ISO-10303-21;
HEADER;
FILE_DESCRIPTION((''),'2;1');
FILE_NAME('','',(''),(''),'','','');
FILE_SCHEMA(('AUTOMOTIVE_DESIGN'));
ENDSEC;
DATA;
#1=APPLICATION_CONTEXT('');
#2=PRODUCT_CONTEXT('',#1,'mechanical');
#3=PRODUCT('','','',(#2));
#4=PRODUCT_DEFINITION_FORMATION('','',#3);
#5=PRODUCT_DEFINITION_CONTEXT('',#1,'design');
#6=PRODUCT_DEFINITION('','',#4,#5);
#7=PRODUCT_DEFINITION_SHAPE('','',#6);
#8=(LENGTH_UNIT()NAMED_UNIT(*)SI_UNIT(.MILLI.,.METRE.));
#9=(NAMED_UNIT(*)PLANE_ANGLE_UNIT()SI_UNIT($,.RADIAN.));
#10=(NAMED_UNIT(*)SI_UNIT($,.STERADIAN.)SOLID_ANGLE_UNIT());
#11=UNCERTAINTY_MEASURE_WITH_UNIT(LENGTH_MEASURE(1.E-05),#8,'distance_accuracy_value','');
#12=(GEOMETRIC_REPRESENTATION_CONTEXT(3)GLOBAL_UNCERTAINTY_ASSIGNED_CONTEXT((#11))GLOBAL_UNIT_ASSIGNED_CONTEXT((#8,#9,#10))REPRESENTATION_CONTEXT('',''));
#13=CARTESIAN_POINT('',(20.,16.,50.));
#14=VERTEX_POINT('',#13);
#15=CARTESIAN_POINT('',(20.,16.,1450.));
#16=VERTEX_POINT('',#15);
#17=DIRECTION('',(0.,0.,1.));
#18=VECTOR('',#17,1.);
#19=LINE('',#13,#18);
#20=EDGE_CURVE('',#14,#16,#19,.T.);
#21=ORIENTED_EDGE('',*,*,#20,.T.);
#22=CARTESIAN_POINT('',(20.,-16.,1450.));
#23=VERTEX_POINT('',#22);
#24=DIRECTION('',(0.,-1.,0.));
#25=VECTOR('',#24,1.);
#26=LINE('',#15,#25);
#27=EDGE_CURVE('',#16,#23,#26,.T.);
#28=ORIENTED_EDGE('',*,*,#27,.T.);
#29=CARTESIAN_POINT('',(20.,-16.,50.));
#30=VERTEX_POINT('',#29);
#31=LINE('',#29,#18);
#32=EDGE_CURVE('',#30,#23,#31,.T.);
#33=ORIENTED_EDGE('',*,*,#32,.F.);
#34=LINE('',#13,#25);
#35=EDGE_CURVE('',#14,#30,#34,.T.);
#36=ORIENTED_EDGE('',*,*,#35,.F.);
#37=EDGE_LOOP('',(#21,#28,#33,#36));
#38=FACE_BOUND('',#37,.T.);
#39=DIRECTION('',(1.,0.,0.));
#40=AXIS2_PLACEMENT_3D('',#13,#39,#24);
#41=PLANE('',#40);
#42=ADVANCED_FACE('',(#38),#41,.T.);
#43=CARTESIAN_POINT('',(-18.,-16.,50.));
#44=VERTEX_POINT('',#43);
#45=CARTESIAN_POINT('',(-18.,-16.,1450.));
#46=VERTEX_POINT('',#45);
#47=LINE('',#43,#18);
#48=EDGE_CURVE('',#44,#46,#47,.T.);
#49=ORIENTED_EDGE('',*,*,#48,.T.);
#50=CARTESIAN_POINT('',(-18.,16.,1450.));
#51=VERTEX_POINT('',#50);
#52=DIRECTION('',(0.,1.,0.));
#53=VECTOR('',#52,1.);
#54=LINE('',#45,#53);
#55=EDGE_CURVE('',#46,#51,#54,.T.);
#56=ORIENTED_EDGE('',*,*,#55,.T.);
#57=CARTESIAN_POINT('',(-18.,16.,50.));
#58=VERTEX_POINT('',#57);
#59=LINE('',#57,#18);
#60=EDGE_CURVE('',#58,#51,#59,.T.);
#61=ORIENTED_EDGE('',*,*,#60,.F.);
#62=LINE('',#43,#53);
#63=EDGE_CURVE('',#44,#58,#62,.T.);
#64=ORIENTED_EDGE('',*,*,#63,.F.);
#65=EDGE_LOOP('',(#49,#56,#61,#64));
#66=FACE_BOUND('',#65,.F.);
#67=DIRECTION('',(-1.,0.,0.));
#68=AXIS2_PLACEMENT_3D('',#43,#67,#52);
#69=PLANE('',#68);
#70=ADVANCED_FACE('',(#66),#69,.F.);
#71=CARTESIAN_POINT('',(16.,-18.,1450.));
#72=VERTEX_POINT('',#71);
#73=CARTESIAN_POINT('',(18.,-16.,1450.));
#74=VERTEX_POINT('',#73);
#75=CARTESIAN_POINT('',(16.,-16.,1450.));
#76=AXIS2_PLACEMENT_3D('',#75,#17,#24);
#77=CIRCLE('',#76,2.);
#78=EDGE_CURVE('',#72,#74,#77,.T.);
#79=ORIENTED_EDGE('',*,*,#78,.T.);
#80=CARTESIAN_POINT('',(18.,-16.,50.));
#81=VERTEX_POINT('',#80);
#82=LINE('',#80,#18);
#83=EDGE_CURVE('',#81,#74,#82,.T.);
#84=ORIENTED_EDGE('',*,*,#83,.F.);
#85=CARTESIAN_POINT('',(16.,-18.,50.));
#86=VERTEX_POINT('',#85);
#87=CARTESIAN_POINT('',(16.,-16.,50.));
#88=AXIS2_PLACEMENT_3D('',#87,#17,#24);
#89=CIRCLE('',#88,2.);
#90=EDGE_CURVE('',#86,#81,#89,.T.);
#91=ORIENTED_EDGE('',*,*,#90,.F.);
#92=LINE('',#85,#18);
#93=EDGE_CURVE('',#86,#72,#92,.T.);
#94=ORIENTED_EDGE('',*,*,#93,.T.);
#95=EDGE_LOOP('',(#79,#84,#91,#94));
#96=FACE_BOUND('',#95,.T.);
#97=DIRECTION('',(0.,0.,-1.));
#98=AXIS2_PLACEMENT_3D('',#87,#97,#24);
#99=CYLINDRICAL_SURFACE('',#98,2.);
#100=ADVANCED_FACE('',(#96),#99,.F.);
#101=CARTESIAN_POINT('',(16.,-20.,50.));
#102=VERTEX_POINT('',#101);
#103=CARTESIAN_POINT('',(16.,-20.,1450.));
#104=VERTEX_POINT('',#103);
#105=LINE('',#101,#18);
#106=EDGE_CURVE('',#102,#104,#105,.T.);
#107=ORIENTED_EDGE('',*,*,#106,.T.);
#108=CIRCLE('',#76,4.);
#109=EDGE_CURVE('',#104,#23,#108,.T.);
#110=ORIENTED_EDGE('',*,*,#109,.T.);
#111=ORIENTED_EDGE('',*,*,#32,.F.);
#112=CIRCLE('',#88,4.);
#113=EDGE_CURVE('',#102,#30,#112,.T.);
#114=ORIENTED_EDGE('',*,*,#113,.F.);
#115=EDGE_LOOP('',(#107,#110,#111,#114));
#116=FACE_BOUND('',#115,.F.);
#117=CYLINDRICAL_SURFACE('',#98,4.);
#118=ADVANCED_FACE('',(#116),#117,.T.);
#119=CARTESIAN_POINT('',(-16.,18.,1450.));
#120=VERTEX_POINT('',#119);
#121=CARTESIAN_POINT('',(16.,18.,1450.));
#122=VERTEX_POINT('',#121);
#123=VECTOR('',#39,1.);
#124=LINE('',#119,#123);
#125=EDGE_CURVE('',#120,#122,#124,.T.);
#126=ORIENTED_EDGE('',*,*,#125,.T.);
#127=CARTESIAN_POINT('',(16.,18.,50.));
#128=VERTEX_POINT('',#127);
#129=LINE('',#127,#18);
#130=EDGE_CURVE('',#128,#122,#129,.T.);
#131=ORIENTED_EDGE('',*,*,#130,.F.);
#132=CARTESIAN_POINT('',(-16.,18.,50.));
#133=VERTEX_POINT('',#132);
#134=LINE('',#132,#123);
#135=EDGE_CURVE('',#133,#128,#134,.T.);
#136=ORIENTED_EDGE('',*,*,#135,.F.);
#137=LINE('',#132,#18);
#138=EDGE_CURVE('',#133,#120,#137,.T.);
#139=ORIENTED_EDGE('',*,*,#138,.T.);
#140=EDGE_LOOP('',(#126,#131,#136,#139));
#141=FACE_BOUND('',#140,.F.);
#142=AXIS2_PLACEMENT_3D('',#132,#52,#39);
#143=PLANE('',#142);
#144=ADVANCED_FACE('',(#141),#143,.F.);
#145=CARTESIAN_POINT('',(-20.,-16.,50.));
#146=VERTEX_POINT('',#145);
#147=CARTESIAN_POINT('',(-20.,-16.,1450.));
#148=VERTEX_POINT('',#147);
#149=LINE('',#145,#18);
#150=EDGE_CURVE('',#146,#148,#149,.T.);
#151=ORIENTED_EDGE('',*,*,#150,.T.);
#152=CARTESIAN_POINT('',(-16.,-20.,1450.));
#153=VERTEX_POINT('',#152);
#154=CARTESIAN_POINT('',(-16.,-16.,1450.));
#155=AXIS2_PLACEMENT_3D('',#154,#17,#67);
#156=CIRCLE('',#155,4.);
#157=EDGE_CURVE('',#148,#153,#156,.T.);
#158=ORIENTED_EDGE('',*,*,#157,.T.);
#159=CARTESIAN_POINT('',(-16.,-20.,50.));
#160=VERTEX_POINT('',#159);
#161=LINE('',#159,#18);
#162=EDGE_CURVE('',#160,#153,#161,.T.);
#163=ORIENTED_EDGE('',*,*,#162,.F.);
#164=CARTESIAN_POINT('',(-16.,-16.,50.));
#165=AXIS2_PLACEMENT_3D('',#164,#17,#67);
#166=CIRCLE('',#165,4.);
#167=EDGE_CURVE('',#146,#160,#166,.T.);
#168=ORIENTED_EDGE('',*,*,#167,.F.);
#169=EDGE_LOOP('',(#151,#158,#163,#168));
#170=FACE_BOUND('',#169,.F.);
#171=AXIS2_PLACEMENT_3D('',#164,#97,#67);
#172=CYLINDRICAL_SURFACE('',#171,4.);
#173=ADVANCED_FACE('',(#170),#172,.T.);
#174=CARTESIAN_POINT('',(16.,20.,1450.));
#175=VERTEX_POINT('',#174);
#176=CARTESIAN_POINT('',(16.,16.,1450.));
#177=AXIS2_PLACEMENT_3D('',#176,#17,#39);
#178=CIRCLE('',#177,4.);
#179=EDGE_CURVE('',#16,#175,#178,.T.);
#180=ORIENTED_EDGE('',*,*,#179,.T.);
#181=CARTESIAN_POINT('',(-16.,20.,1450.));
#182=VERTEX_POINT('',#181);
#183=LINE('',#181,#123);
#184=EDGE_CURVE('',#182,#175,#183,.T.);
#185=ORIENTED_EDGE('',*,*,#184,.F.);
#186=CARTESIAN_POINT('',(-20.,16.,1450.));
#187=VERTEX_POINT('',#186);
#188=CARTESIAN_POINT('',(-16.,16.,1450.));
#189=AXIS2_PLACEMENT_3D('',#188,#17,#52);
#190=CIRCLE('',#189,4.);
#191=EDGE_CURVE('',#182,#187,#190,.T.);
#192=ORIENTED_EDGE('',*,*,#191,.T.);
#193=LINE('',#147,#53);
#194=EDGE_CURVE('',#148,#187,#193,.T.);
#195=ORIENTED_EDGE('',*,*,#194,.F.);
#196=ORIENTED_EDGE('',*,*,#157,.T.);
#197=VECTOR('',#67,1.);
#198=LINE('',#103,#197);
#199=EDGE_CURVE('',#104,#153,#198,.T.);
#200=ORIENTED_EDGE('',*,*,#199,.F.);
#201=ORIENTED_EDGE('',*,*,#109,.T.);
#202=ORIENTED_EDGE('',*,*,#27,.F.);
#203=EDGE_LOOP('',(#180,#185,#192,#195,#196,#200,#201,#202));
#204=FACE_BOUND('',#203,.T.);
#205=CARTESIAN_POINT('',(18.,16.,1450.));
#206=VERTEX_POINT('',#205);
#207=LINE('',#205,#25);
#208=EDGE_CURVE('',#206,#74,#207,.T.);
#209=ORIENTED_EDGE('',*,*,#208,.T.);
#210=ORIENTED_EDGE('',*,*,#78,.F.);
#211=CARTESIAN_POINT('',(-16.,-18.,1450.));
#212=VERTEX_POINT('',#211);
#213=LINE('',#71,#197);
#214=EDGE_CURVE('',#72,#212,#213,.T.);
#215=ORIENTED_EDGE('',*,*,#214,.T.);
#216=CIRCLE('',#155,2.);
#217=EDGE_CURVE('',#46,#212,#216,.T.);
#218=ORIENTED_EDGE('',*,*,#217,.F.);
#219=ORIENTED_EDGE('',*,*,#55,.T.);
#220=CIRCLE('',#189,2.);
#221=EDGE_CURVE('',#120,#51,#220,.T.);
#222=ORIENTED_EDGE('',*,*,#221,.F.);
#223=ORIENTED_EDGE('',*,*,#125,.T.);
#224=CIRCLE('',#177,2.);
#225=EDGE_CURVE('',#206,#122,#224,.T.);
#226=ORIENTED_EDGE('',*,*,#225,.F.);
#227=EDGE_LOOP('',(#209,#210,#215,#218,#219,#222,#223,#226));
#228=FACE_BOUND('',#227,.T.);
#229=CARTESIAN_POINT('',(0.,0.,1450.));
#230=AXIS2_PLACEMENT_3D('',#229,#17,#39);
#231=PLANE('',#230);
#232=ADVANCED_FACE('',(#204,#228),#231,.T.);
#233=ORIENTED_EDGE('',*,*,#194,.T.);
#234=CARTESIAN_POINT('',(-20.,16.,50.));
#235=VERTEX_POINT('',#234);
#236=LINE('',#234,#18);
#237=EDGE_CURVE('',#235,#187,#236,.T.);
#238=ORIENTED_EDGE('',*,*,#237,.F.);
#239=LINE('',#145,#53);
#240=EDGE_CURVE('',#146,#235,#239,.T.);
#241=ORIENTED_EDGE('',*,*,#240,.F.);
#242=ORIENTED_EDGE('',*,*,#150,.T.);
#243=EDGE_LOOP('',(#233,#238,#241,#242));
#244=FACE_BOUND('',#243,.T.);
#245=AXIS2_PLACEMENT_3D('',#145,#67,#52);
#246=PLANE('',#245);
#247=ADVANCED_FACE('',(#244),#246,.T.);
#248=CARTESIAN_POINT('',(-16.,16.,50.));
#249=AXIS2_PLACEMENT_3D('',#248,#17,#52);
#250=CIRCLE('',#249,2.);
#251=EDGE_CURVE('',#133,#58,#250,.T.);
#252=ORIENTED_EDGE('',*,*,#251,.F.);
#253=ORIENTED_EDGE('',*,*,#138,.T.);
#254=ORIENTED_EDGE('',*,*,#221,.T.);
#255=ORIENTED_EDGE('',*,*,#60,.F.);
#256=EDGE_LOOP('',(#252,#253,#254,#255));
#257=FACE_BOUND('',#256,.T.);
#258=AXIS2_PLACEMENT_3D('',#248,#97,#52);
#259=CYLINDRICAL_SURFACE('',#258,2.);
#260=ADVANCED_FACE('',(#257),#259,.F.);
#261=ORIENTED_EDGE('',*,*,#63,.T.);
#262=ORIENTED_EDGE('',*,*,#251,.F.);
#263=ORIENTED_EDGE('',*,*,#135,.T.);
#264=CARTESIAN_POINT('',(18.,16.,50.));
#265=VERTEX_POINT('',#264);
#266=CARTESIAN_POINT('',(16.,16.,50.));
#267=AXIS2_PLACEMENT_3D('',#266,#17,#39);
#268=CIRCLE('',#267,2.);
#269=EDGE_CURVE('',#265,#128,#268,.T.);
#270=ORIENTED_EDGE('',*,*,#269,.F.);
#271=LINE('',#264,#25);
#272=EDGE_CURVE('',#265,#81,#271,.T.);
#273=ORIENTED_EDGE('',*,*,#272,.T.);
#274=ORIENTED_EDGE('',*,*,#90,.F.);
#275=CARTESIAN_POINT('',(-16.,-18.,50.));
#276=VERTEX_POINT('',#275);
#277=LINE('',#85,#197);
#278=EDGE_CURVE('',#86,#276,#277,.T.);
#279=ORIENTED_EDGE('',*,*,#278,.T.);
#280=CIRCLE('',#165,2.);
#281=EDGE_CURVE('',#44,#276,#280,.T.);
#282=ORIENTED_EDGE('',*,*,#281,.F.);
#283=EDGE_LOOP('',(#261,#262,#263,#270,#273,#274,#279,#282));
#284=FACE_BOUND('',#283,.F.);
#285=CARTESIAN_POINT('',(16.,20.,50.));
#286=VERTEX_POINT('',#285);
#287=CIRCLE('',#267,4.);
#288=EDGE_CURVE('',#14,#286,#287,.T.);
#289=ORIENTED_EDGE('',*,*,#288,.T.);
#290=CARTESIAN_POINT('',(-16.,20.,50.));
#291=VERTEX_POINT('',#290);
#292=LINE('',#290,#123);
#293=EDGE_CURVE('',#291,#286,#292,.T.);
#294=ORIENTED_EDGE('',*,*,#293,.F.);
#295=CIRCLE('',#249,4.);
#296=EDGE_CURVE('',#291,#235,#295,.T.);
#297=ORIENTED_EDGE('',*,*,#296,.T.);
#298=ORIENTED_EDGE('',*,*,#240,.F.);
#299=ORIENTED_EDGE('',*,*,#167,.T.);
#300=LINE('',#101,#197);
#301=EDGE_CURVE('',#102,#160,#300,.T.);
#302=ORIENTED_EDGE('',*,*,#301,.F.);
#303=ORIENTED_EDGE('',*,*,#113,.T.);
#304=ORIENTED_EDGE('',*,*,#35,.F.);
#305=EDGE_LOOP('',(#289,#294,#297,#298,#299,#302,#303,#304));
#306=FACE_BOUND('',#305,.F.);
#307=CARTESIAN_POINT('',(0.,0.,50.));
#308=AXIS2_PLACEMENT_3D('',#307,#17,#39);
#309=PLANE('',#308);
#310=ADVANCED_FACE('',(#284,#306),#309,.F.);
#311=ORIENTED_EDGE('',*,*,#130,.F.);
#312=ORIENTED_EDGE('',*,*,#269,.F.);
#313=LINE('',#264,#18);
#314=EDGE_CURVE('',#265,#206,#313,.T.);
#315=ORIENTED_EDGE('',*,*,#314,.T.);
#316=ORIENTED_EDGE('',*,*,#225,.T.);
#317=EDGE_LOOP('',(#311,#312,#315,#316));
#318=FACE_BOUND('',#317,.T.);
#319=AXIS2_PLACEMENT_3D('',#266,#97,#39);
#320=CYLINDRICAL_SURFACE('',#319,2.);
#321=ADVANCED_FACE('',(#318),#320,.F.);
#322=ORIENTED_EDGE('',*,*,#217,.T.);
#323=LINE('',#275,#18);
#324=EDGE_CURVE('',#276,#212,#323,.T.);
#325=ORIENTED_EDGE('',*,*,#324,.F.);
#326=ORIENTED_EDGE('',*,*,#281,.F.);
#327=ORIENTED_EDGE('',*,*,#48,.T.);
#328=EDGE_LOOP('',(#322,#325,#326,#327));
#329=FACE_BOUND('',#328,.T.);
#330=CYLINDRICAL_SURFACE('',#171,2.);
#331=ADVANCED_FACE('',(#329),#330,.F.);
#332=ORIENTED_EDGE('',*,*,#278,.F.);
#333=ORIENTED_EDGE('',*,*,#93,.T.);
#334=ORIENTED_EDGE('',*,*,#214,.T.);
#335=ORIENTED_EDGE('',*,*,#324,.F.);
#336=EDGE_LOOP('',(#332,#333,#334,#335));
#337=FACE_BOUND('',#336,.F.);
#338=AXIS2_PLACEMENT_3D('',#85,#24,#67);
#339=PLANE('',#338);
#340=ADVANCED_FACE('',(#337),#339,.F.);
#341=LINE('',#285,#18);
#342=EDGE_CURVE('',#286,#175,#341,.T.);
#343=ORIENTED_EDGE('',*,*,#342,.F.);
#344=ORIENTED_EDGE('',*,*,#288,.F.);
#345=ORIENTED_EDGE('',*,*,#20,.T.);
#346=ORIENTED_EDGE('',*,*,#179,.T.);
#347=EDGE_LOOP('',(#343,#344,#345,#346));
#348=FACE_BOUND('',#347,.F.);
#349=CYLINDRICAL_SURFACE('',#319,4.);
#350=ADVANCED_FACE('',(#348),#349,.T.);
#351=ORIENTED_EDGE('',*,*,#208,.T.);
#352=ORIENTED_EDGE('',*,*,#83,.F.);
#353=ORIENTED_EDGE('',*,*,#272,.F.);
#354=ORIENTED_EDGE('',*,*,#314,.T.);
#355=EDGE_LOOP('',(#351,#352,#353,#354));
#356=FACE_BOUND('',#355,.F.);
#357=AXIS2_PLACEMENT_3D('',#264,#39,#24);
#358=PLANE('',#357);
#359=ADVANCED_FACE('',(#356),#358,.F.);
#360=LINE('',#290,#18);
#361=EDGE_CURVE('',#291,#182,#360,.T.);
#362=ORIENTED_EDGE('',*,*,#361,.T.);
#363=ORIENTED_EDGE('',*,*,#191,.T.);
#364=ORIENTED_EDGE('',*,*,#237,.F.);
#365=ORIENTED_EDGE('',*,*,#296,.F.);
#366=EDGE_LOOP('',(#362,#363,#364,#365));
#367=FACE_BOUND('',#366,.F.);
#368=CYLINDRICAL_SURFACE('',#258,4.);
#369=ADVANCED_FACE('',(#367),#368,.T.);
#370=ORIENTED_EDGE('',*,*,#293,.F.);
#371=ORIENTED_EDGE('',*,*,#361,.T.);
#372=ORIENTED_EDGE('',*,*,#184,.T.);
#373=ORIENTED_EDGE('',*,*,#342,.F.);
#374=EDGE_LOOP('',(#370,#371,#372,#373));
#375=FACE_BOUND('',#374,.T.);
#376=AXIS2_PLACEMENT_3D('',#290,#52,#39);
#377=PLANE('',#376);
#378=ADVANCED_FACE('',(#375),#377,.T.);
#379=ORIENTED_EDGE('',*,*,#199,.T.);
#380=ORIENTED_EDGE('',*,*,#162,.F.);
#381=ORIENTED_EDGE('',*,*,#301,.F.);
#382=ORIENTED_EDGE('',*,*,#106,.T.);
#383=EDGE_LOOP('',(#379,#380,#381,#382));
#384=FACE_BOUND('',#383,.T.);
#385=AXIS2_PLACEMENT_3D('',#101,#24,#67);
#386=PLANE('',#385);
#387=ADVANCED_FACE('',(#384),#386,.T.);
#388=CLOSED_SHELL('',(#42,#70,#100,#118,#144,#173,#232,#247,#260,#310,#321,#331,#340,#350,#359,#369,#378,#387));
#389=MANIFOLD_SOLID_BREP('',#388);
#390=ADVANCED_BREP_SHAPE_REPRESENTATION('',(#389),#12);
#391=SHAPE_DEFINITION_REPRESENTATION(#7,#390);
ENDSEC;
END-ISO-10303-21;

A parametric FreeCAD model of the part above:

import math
import FreeCAD as App
import Part
import Sketcher

V = App.Vector
Q = App.Units.Quantity

doc = App.newDocument("Part")
body = doc.addObject("PartDesign::Body", "Body")

# Sketch on XY plane
sketch1 = body.newObject("Sketcher::SketchObject", "Sketch")
sketch1.AttachmentSupport = (doc.getObject("XY_Plane"), [""])
sketch1.MapMode = "FlatFace"
sketch1.AttachmentOffset = App.Placement(V(0, 0, 50), App.Rotation())
sketch1.addGeometry([
    Part.LineSegment(V(-20, 16, 0), V(-20, -16, 0)),  # 0
    Part.ArcOfCircle(Part.Circle(V(-16, -16, 0), V(0, 0, 1), 4), math.radians(180), math.radians(270)),  # 1
    Part.LineSegment(V(-16, -20, 0), V(16, -20, 0)),  # 2
    Part.ArcOfCircle(Part.Circle(V(16, -16, 0), V(0, 0, 1), 4), math.radians(-90), math.radians(0)),  # 3
    Part.LineSegment(V(20, -16, 0), V(20, 16, 0)),  # 4
    Part.ArcOfCircle(Part.Circle(V(16, 16, 0), V(0, 0, 1), 4), math.radians(0), math.radians(90)),  # 5
    Part.LineSegment(V(16, 20, 0), V(-16, 20, 0)),  # 6
    Part.ArcOfCircle(Part.Circle(V(-16, 16, 0), V(0, 0, 1), 4), math.radians(90), math.radians(180)),  # 7
    Part.ArcOfCircle(Part.Circle(V(-16, 16, 0), V(0, 0, 1), 2), math.radians(90), math.radians(180)),  # 8
    Part.LineSegment(V(-16, 18, 0), V(16, 18, 0)),  # 9
    Part.ArcOfCircle(Part.Circle(V(16, 16, 0), V(0, 0, 1), 2), math.radians(0), math.radians(90)),  # 10
    Part.LineSegment(V(18, 16, 0), V(18, -16, 0)),  # 11
    Part.ArcOfCircle(Part.Circle(V(16, -16, 0), V(0, 0, 1), 2), math.radians(-90), math.radians(0)),  # 12
    Part.LineSegment(V(16, -18, 0), V(-16, -18, 0)),  # 13
    Part.ArcOfCircle(Part.Circle(V(-16, -16, 0), V(0, 0, 1), 2), math.radians(180), math.radians(270)),  # 14
    Part.LineSegment(V(-18, -16, 0), V(-18, 16, 0)),  # 15
], False)
sketch1.addConstraint([
    Sketcher.Constraint("Tangent", 0, 2, 1, 1),
    Sketcher.Constraint("Tangent", 1, 2, 2, 1),
    Sketcher.Constraint("Tangent", 2, 2, 3, 1),
    Sketcher.Constraint("Tangent", 3, 2, 4, 1),
    Sketcher.Constraint("Tangent", 4, 2, 5, 1),
    Sketcher.Constraint("Tangent", 5, 2, 6, 1),
    Sketcher.Constraint("Tangent", 6, 2, 7, 1),
    Sketcher.Constraint("Tangent", 7, 2, 0, 1),
    Sketcher.Constraint("Tangent", 8, 1, 9, 1),
    Sketcher.Constraint("Tangent", 9, 2, 10, 2),
    Sketcher.Constraint("Tangent", 10, 1, 11, 1),
    Sketcher.Constraint("Tangent", 11, 2, 12, 2),
    Sketcher.Constraint("Tangent", 12, 1, 13, 1),
    Sketcher.Constraint("Tangent", 13, 2, 14, 2),
    Sketcher.Constraint("Tangent", 14, 1, 15, 1),
    Sketcher.Constraint("Tangent", 15, 2, 8, 2),
    Sketcher.Constraint("Vertical", 0),
    Sketcher.Constraint("Horizontal", 2),
    Sketcher.Constraint("Vertical", 4),
    Sketcher.Constraint("Horizontal", 6),
    Sketcher.Constraint("Horizontal", 9),
    Sketcher.Constraint("Vertical", 11),
    Sketcher.Constraint("Horizontal", 13),
    Sketcher.Constraint("Vertical", 15),
    Sketcher.Constraint("Coincident", 8, 3, 7, 3),
    Sketcher.Constraint("Coincident", 10, 3, 5, 3),
    Sketcher.Constraint("Coincident", 12, 3, 3, 3),
    Sketcher.Constraint("Equal", 1, 3),
    Sketcher.Constraint("Equal", 3, 5),
    Sketcher.Constraint("Equal", 5, 7),
    Sketcher.Constraint("Equal", 12, 14),
    Sketcher.Constraint("Symmetric", 1, 3, 5, 3, -1, 1),
    Sketcher.Constraint("Equal", 13, 0),
    Sketcher.Constraint("Radius", 1, Q("4 mm")),
    Sketcher.Constraint("Radius", 8, Q("2 mm")),
    Sketcher.Constraint("DistanceX", 0, 2, -1, 1, Q("20 mm")),
])
pad1 = body.newObject("PartDesign::Pad", "Pad")
pad1.Profile = sketch1
pad1.Length = 1400

doc.recompute()
